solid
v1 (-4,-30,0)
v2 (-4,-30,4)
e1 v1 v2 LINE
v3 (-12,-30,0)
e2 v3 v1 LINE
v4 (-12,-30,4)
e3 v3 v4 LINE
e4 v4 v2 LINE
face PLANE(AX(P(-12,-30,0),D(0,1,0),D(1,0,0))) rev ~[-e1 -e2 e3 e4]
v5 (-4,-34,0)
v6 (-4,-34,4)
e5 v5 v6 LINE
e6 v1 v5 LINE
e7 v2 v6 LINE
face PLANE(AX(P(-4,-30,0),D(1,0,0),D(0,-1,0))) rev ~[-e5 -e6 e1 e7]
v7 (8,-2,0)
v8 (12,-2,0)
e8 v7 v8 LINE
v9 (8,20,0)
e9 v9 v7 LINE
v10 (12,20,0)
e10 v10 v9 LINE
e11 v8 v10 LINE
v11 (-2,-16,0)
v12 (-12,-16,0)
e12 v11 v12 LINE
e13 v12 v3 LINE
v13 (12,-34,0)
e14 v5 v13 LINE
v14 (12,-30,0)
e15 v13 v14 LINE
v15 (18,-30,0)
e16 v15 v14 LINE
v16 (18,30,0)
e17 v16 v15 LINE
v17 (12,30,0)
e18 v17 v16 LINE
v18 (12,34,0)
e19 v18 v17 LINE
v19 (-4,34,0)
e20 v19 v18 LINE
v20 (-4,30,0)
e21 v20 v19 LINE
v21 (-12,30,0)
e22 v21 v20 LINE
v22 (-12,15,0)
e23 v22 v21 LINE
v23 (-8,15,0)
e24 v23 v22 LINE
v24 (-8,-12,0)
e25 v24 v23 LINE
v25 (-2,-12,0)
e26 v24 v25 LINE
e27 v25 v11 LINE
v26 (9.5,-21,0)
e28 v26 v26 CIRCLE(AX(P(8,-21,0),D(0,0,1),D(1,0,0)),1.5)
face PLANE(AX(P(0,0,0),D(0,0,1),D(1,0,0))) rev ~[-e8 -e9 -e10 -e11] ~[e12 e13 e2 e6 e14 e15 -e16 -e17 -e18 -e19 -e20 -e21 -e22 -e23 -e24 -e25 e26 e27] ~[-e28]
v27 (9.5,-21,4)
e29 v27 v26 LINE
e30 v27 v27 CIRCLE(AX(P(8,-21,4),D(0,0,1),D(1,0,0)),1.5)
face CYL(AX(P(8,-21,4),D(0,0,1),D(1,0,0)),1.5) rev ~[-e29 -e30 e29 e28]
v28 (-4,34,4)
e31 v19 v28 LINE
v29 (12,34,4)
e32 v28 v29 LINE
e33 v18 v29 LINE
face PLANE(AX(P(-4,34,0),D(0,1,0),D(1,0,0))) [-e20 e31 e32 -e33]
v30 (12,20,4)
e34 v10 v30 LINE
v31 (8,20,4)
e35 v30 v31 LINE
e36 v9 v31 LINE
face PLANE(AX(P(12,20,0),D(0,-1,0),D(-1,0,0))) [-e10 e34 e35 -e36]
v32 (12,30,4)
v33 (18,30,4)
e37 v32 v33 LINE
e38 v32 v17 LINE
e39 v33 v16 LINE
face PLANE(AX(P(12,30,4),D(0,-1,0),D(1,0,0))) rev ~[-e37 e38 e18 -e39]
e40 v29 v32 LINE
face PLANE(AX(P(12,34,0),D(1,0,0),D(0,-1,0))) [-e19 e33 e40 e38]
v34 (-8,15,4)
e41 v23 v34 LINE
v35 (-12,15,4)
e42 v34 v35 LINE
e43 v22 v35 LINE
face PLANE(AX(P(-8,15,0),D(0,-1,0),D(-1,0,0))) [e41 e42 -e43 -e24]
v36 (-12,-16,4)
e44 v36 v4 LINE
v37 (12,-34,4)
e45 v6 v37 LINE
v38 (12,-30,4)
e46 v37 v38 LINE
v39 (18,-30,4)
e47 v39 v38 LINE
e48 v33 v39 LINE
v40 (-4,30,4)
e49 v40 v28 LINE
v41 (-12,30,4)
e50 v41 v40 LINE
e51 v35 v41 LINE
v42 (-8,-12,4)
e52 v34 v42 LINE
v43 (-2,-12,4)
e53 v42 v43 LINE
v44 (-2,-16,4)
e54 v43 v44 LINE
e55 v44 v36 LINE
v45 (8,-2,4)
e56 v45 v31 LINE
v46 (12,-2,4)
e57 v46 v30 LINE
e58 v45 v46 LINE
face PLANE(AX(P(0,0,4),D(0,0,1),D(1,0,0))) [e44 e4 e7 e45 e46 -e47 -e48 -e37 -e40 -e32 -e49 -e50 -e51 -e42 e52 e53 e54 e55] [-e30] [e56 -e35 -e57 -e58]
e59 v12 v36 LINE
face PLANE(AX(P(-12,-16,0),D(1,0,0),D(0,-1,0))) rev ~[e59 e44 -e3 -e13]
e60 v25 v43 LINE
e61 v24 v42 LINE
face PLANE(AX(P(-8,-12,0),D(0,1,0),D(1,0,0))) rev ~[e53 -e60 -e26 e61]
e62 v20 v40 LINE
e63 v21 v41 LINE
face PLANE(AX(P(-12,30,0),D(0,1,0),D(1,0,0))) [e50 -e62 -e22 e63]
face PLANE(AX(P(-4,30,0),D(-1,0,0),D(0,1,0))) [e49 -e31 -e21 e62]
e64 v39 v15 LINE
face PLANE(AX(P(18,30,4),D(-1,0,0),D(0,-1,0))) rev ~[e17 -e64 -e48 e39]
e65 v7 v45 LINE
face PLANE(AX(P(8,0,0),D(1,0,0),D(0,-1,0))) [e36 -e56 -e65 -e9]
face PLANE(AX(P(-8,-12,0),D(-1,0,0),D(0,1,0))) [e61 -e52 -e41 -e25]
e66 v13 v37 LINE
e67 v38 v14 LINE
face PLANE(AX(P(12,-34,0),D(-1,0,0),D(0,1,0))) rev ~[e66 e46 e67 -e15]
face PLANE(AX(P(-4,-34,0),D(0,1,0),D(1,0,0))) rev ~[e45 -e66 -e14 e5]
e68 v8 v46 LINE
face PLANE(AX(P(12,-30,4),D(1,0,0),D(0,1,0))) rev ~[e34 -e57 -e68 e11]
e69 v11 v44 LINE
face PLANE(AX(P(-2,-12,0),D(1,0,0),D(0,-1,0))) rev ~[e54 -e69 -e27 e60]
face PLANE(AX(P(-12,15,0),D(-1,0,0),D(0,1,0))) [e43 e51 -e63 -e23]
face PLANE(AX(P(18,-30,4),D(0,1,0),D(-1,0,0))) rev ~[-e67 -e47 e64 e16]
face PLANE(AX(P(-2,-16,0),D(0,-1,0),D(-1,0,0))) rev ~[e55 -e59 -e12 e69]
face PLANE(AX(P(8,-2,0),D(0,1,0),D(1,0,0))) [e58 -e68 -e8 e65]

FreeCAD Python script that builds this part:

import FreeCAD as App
import Part
import Sketcher
from FreeCAD import Vector
Q = App.Units.Quantity

doc = App.newDocument("Part")
body = doc.addObject("PartDesign::Body", "Body")

# Sketch on XY plane
sketch1 = body.newObject("Sketcher::SketchObject", "Sketch")
sketch1.AttachmentSupport = (doc.getObject("XY_Plane"), [""])
sketch1.MapMode = "FlatFace"
sketch1.addGeometry([
    Part.LineSegment(Vector(-2, -16, 0), Vector(-12, -16, 0)),  # 0
    Part.LineSegment(Vector(-12, -16, 0), Vector(-12, -30, 0)),  # 1
    Part.LineSegment(Vector(-12, -30, 0), Vector(-4, -30, 0)),  # 2
    Part.LineSegment(Vector(-4, -30, 0), Vector(-4, -34, 0)),  # 3
    Part.LineSegment(Vector(-4, -34, 0), Vector(12, -34, 0)),  # 4
    Part.LineSegment(Vector(12, -34, 0), Vector(12, -2, 0)),  # 5
    Part.LineSegment(Vector(12, -2, 0), Vector(8, -2, 0)),  # 6
    Part.LineSegment(Vector(8, -2, 0), Vector(8, 20, 0)),  # 7
    Part.LineSegment(Vector(8, 20, 0), Vector(12, 20, 0)),  # 8
    Part.LineSegment(Vector(12, 20, 0), Vector(12, 34, 0)),  # 9
    Part.LineSegment(Vector(12, 34, 0), Vector(-4, 34, 0)),  # 10
    Part.LineSegment(Vector(-4, 34, 0), Vector(-4, 30, 0)),  # 11
    Part.LineSegment(Vector(-4, 30, 0), Vector(-12, 30, 0)),  # 12
    Part.LineSegment(Vector(-12, 30, 0), Vector(-12, 15, 0)),  # 13
    Part.LineSegment(Vector(-12, 15, 0), Vector(-8, 15, 0)),  # 14
    Part.LineSegment(Vector(-8, 15, 0), Vector(-8, -12, 0)),  # 15
    Part.LineSegment(Vector(-8, -12, 0), Vector(-2, -12, 0)),  # 16
    Part.LineSegment(Vector(-2, -12, 0), Vector(-2, -16, 0)),  # 17
], False)
sketch1.addConstraint([
    Sketcher.Constraint("Coincident", 0, 2, 1, 1),
    Sketcher.Constraint("Coincident", 1, 2, 2, 1),
    Sketcher.Constraint("Coincident", 2, 2, 3, 1),
    Sketcher.Constraint("Coincident", 3, 2, 4, 1),
    Sketcher.Constraint("Coincident", 4, 2, 5, 1),
    Sketcher.Constraint("Coincident", 5, 2, 6, 1),
    Sketcher.Constraint("Coincident", 6, 2, 7, 1),
    Sketcher.Constraint("Coincident", 7, 2, 8, 1),
    Sketcher.Constraint("Coincident", 8, 2, 9, 1),
    Sketcher.Constraint("Coincident", 9, 2, 10, 1),
    Sketcher.Constraint("Coincident", 10, 2, 11, 1),
    Sketcher.Constraint("Coincident", 11, 2, 12, 1),
    Sketcher.Constraint("Coincident", 12, 2, 13, 1),
    Sketcher.Constraint("Coincident", 13, 2, 14, 1),
    Sketcher.Constraint("Coincident", 14, 2, 15, 1),
    Sketcher.Constraint("Coincident", 15, 2, 16, 1),
    Sketcher.Constraint("Coincident", 16, 2, 17, 1),
    Sketcher.Constraint("Coincident", 17, 2, 0, 1),
    Sketcher.Constraint("Horizontal", 0),
    Sketcher.Constraint("Vertical", 1),
    Sketcher.Constraint("Horizontal", 2),
    Sketcher.Constraint("Vertical", 3),
    Sketcher.Constraint("Horizontal", 4),
    Sketcher.Constraint("Vertical", 5),
    Sketcher.Constraint("Horizontal", 6),
    Sketcher.Constraint("Vertical", 7),
    Sketcher.Constraint("Horizontal", 8),
    Sketcher.Constraint("Vertical", 9),
    Sketcher.Constraint("Horizontal", 10),
    Sketcher.Constraint("Vertical", 11),
    Sketcher.Constraint("Horizontal", 12),
    Sketcher.Constraint("Vertical", 13),
    Sketcher.Constraint("Horizontal", 14),
    Sketcher.Constraint("Vertical", 15),
    Sketcher.Constraint("Horizontal", 16),
    Sketcher.Constraint("Vertical", 17),
    Sketcher.Constraint("Symmetric", 4, 2, 9, 2, -1),
    Sketcher.Constraint("Symmetric", 2, 2, 11, 2, -1),
    Sketcher.Constraint("Vertical", 1, 2, 12, 2),
    Sketcher.Constraint("Equal", 8, 14),
    Sketcher.Constraint("Equal", 14, 3),
    Sketcher.Constraint("Equal", 1, 9),
    Sketcher.Constraint("Equal", 11, 17),
    Sketcher.Constraint("DistanceX", 0, 2, 0, 1, Q("10 mm")),
    Sketcher.Constraint("DistanceX", 2, 1, 2, 2, Q("8 mm")),
    Sketcher.Constraint("DistanceX", 4, 1, 4, 2, Q("16 mm")),
    Sketcher.Constraint("DistanceX", 6, 2, 6, 1, Q("4 mm")),
    Sketcher.Constraint("DistanceY", 1, 2, 1, 1, Q("14 mm")),
    Sketcher.Constraint("DistanceY", 7, 1, 7, 2, Q("22 mm")),
    Sketcher.Constraint("DistanceY", 13, 2, 13, 1, Q("15 mm")),
    Sketcher.Constraint("DistanceY", 15, 2, 15, 1, Q("27 mm")),
    Sketcher.Constraint("DistanceX", 2, 2, -1, 1, Q("4 mm")),
])
pad1 = body.newObject("PartDesign::Pad", "Pad")
pad1.Profile = sketch1
pad1.Length = 4

# Sketch on XY plane
sketch2 = body.newObject("Sketcher::SketchObject", "Sketch001")
sketch2.AttachmentSupport = (doc.getObject("XY_Plane"), [""])
sketch2.MapMode = "FlatFace"
sketch2.AttachmentOffset = App.Placement(Vector(0, 0, 4), App.Rotation())
sketch2.addGeometry(Part.Circle(Vector(8, -21, 0), Vector(0, 0, 1), 1.5), False)
sketch2.addConstraint([
    Sketcher.Constraint("Diameter", 0, Q("3 mm")),
    Sketcher.Constraint("DistanceX", -1, 1, 0, 3, Q("8 mm")),
    Sketcher.Constraint("DistanceY", 0, 3, -1, 1, Q("21 mm")),
])
pocket1 = body.newObject("PartDesign::Pocket", "Pocket")
pocket1.Profile = sketch2
pocket1.Type = "ThroughAll"

# Sketch on XY plane
sketch3 = body.newObject("Sketcher::SketchObject", "Sketch002")
sketch3.AttachmentSupport = (doc.getObject("XY_Plane"), [""])
sketch3.MapMode = "FlatFace"
sketch3.AttachmentOffset = App.Placement(Vector(0, 0, 4), App.Rotation())
sketch3.addGeometry([
    Part.LineSegment(Vector(12, 30, 0), Vector(12, -30, 0)),
    Part.LineSegment(Vector(12, -30, 0), Vector(18, -30, 0)),
    Part.LineSegment(Vector(18, -30, 0), Vector(18, 30, 0)),
    Part.LineSegment(Vector(18, 30, 0), Vector(12, 30, 0)),
], False)
sketch3.addConstraint([
    Sketcher.Constraint("Coincident", 0, 2, 1, 1),
    Sketcher.Constraint("Coincident", 1, 2, 2, 1),
    Sketcher.Constraint("Coincident", 2, 2, 3, 1),
    Sketcher.Constraint("Coincident", 3, 2, 0, 1),
    Sketcher.Constraint("Vertical", 0),
    Sketcher.Constraint("Horizontal", 1),
    Sketcher.Constraint("Vertical", 2),
    Sketcher.Constraint("Horizontal", 3),
    Sketcher.Constraint("DistanceX", 1, 1, 1, 2, Q("6 mm")),
    Sketcher.Constraint("DistanceY", 0, 2, 0, 1, Q("60 mm")),
    Sketcher.Constraint("DistanceX", -1, 1, 0, 2, Q("12 mm")),
    Sketcher.Constraint("DistanceY", 0, 2, -1, 1, Q("30 mm")),
])
pad2 = body.newObject("PartDesign::Pad", "Pad001")
pad2.Profile = sketch3
pad2.Length = 4
pad2.Reversed = True

doc.recompute()
